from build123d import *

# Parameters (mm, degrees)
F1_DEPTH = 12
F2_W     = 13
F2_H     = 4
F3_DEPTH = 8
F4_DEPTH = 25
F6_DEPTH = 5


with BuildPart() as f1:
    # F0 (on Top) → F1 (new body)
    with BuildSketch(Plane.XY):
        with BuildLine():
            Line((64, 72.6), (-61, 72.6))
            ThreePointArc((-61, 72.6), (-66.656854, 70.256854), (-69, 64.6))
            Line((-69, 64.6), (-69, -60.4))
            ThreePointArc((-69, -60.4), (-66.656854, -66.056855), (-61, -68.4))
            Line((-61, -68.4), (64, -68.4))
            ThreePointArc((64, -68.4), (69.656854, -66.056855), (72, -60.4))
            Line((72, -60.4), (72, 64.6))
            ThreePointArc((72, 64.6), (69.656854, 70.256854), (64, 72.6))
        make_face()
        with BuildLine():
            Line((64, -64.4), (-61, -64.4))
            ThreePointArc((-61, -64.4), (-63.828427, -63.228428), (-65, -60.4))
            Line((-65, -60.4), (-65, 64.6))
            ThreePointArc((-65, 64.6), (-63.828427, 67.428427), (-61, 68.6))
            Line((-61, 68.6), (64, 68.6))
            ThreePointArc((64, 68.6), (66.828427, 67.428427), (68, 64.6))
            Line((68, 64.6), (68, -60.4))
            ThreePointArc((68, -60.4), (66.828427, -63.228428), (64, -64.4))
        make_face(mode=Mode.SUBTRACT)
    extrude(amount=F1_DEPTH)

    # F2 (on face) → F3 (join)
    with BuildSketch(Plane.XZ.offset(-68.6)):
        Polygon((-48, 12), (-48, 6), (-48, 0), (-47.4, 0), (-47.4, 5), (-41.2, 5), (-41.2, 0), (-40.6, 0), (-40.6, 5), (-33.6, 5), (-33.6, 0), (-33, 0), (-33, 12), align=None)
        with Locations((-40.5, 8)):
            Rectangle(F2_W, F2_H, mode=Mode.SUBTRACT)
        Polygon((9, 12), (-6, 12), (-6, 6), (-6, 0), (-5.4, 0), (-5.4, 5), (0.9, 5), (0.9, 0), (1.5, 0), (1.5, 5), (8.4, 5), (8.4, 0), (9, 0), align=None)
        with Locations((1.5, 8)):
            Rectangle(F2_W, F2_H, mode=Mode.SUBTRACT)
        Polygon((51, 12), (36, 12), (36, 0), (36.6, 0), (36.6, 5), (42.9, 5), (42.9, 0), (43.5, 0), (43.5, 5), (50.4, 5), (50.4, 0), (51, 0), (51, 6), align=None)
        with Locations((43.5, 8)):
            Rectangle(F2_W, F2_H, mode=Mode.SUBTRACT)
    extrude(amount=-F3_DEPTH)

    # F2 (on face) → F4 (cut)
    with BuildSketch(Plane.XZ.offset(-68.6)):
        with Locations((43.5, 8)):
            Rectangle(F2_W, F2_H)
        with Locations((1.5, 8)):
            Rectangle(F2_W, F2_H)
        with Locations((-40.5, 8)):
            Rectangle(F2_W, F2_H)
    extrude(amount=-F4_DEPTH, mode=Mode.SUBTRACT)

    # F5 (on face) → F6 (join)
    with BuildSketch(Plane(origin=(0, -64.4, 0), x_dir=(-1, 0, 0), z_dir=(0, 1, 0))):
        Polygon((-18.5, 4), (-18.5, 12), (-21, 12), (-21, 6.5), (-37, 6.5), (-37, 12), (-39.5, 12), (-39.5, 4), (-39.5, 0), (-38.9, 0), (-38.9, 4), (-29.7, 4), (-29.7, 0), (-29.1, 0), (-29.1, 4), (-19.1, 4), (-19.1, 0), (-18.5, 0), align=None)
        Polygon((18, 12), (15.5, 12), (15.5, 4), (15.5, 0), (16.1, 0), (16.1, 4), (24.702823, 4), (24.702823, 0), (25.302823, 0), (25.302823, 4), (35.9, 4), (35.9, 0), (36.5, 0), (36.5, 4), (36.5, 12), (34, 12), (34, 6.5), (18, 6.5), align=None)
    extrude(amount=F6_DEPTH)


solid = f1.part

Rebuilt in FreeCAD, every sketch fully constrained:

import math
import FreeCAD as App
import Part
import Sketcher
from FreeCAD import Vector


def add_polygon(sketch, points):
    """Adds a closed chain of lines whose ends are joined by coincident constraints."""
    first, n = sketch.GeometryCount, len(points)
    for a, b in zip(points, points[1:] + points[:1]):
        sketch.addGeometry(Part.LineSegment(App.Vector(*a, 0), App.Vector(*b, 0)), False)
    for i in range(n):
        sketch.addConstraint(Sketcher.Constraint("Coincident", first + i, 2, first + (i + 1) % n, 1))

doc = App.newDocument("Part")
params = doc.addObject("Spreadsheet::Sheet", "Params")
for row, (alias, value) in enumerate([
    ("sketch1_radius", "8.000001 mm"),
    ("sketch1_radius2", "3.999999 mm"),
    ("sketch1_width", "125 mm"),
    ("pad1_length", "12 mm"),
    ("sketch2_width", "7 mm"),
    ("sketch2_width2", "15 mm"),
    ("sketch2_width3", "13 mm"),
    ("sketch2_height", "12 mm"),
    ("sketch2_height2", "5 mm"),
    ("pad2_length", "8 mm"),
    ("sketch3_width", "13 mm"),
    ("sketch3_height", "4 mm"),
    ("pocket1_length", "25 mm"),
    ("sketch4_width", "16 mm"),
    ("sketch4_width2", "10 mm"),
    ("sketch4_height", "12 mm"),
    ("sketch4_height2", "4 mm"),
    ("sketch4_width3", "2.5 mm"),
    ("pad3_length", "5 mm"),
], start=1):
    params.set(f"A{row}", alias)
    params.set(f"B{row}", "=" + value)
    params.setAlias(f"B{row}", alias)

body = doc.addObject("PartDesign::Body", "Body")

# Sketch on XY plane
sketch1 = doc.addObject("Sketcher::SketchObject", "Sketch")
body.addObject(sketch1)
sketch1.AttachmentSupport = (doc.XY_Plane, [""])
sketch1.MapMode = "FlatFace"
sketch1.addGeometry([
    Part.LineSegment(Vector(64, 72.6, 0), Vector(-61, 72.6, 0)),  # 0
    Part.ArcOfCircle(Part.Circle(Vector(-61, 64.6, 0), Vector(0, 0, 1), 8), math.radians(90), math.radians(180)),  # 1
    Part.LineSegment(Vector(-69, 64.6, 0), Vector(-69, -60.4, 0)),  # 2
    Part.ArcOfCircle(Part.Circle(Vector(-61, -60.4, 0), Vector(0, 0, 1), 8), math.radians(180), math.radians(270)),  # 3
    Part.LineSegment(Vector(-61, -68.4, 0), Vector(64, -68.4, 0)),  # 4
    Part.ArcOfCircle(Part.Circle(Vector(64, -60.4, 0), Vector(0, 0, 1), 8), math.radians(-90), math.radians(0)),  # 5
    Part.LineSegment(Vector(72, -60.4, 0), Vector(72, 64.6, 0)),  # 6
    Part.ArcOfCircle(Part.Circle(Vector(64, 64.6, 0), Vector(0, 0, 1), 8), math.radians(0), math.radians(90)),  # 7
    Part.ArcOfCircle(Part.Circle(Vector(64, -60.4, 0), Vector(0, 0, 1), 4), math.radians(-90), math.radians(0)),  # 8
    Part.LineSegment(Vector(64, -64.4, 0), Vector(-61, -64.4, 0)),  # 9
    Part.ArcOfCircle(Part.Circle(Vector(-61, -60.4, 0), Vector(0, 0, 1), 4), math.radians(180), math.radians(270)),  # 10
    Part.LineSegment(Vector(-65, -60.4, 0), Vector(-65, 64.6, 0)),  # 11
    Part.ArcOfCircle(Part.Circle(Vector(-61, 64.6, 0), Vector(0, 0, 1), 4), math.radians(90), math.radians(180)),  # 12
    Part.LineSegment(Vector(-61, 68.6, 0), Vector(64, 68.6, 0)),  # 13
    Part.ArcOfCircle(Part.Circle(Vector(64, 64.6, 0), Vector(0, 0, 1), 4), math.radians(0), math.radians(90)),  # 14
    Part.LineSegment(Vector(68, 64.6, 0), Vector(68, -60.4, 0)),  # 15
], False)
sketch1.addConstraint([
    Sketcher.Constraint("Tangent", 0, 2, 1, 1),
    Sketcher.Constraint("Tangent", 1, 2, 2, 1),
    Sketcher.Constraint("Tangent", 2, 2, 3, 1),
    Sketcher.Constraint("Tangent", 3, 2, 4, 1),
    Sketcher.Constraint("Tangent", 4, 2, 5, 1),
    Sketcher.Constraint("Tangent", 5, 2, 6, 1),
    Sketcher.Constraint("Tangent", 6, 2, 7, 1),
    Sketcher.Constraint("Tangent", 7, 2, 0, 1),
    Sketcher.Constraint("Tangent", 8, 1, 9, 1),
    Sketcher.Constraint("Tangent", 9, 2, 10, 2),
    Sketcher.Constraint("Tangent", 10, 1, 11, 1),
    Sketcher.Constraint("Tangent", 11, 2, 12, 2),
    Sketcher.Constraint("Tangent", 12, 1, 13, 1),
    Sketcher.Constraint("Tangent", 13, 2, 14, 2),
    Sketcher.Constraint("Tangent", 14, 1, 15, 1),
    Sketcher.Constraint("Tangent", 15, 2, 8, 2),
    Sketcher.Constraint("Horizontal", 0),
    Sketcher.Constraint("Vertical", 2),
    Sketcher.Constraint("Horizontal", 4),
    Sketcher.Constraint("Vertical", 6),
    Sketcher.Constraint("Horizontal", 9),
    Sketcher.Constraint("Vertical", 11),
    Sketcher.Constraint("Horizontal", 13),
    Sketcher.Constraint("Vertical", 15),
    Sketcher.Constraint("Coincident", 8, 3, 5, 3),
    Sketcher.Constraint("Coincident", 10, 3, 3, 3),
    Sketcher.Constraint("Coincident", 12, 3, 1, 3),
    Sketcher.Constraint("Equal", 1, 3),
    Sketcher.Constraint("Equal", 3, 5),
    Sketcher.Constraint("Equal", 5, 7),
    Sketcher.Constraint("Equal", 12, 14),
    Sketcher.Constraint("Equal", 13, 2),
    Sketcher.Constraint("Radius", 1, 8.000001),
    Sketcher.Constraint("Radius", 8, 3.999999),
    Sketcher.Constraint("DistanceX", 0, 2, 0, 1, 125.0),
    Sketcher.Constraint("DistanceX", 1, 3, -1, 1, 60.999999),
    Sketcher.Constraint("DistanceY", -1, 1, 1, 3, 64.599999),
])
sketch1.setExpression("Constraints[32]", "Params.sketch1_radius")
sketch1.setExpression("Constraints[33]", "Params.sketch1_radius2")
sketch1.setExpression("Constraints[34]", "Params.sketch1_width")
pad1 = doc.addObject("PartDesign::Pad", "Pad")
body.addObject(pad1)
pad1.Profile = sketch1
pad1.setExpression("Length", "Params.pad1_length")

# Sketch on XZ plane
sketch2 = doc.addObject("Sketcher::SketchObject", "Sketch001")
body.addObject(sketch2)
sketch2.AttachmentSupport = (doc.XZ_Plane, [""])
sketch2.MapMode = "FlatFace"
sketch2.AttachmentOffset = App.Placement(Vector(0, 0, -68.6), App.Rotation())
add_polygon(sketch2, [(-48, 12), (-48, 0), (-47.4, 0), (-47.4, 5), (-41.2, 5), (-41.2, 0), (-40.6, 0), (-40.6, 5), (-33.6, 5), (-33.6, 0), (-33, 0), (-33, 12)])  # lines 0-11
add_polygon(sketch2, [(-34, 6), (-47, 6), (-47, 10), (-34, 10)])  # lines 12-15
add_polygon(sketch2, [(9, 12), (-6, 12), (-6, 0), (-5.4, 0), (-5.4, 5), (0.9, 5), (0.9, 0), (1.5, 0), (1.5, 5), (8.4, 5), (8.4, 0), (9, 0)])  # lines 16-27
add_polygon(sketch2, [(8, 6), (-5, 6), (-5, 10), (8, 10)])  # lines 28-31
add_polygon(sketch2, [(51, 12), (36, 12), (36, 0), (36.6, 0), (36.6, 5), (42.9, 5), (42.9, 0), (43.5, 0), (43.5, 5), (50.4, 5), (50.4, 0), (51, 0)])  # lines 32-43
add_polygon(sketch2, [(50, 6), (37, 6), (37, 10), (50, 10)])  # lines 44-47
sketch2.addConstraint([
    Sketcher.Constraint("Vertical", 0),
    Sketcher.Constraint("Horizontal", 1),
    Sketcher.Constraint("Vertical", 2),
    Sketcher.Constraint("Horizontal", 3),
    Sketcher.Constraint("Vertical", 4),
    Sketcher.Constraint("Horizontal", 5),
    Sketcher.Constraint("Vertical", 6),
    Sketcher.Constraint("Horizontal", 7),
    Sketcher.Constraint("Vertical", 8),
    Sketcher.Constraint("Horizontal", 9),
    Sketcher.Constraint("Vertical", 10),
    Sketcher.Constraint("Horizontal", 11),
    Sketcher.Constraint("Horizontal", 12),
    Sketcher.Constraint("Vertical", 13),
    Sketcher.Constraint("Horizontal", 14),
    Sketcher.Constraint("Vertical", 15),
    Sketcher.Constraint("Horizontal", 16),
    Sketcher.Constraint("Vertical", 17),
    Sketcher.Constraint("Horizontal", 18),
    Sketcher.Constraint("Vertical", 19),
    Sketcher.Constraint("Horizontal", 20),
    Sketcher.Constraint("Vertical", 21),
    Sketcher.Constraint("Horizontal", 22),
    Sketcher.Constraint("Vertical", 23),
    Sketcher.Constraint("Horizontal", 24),
    Sketcher.Constraint("Vertical", 25),
    Sketcher.Constraint("Horizontal", 26),
    Sketcher.Constraint("Vertical", 27),
    Sketcher.Constraint("Horizontal", 28),
    Sketcher.Constraint("Vertical", 29),
    Sketcher.Constraint("Horizontal", 30),
    Sketcher.Constraint("Vertical", 31),
    Sketcher.Constraint("Horizontal", 32),
    Sketcher.Constraint("Vertical", 33),
    Sketcher.Constraint("Horizontal", 34),
    Sketcher.Constraint("Vertical", 35),
    Sketcher.Constraint("Horizontal", 36),
    Sketcher.Constraint("Vertical", 37),
    Sketcher.Constraint("Horizontal", 38),
    Sketcher.Constraint("Vertical", 39),
    Sketcher.Constraint("Horizontal", 40),
    Sketcher.Constraint("Vertical", 41),
    Sketcher.Constraint("Horizontal", 42),
    Sketcher.Constraint("Vertical", 43),
    Sketcher.Constraint("Horizontal", 44),
    Sketcher.Constraint("Vertical", 45),
    Sketcher.Constraint("Horizontal", 46),
    Sketcher.Constraint("Vertical", 47),
    Sketcher.Constraint("PointOnObject", 0, 2, -1),
    Sketcher.Constraint("PointOnObject", 4, 2, -1),
    Sketcher.Constraint("PointOnObject", 8, 2, -1),
    Sketcher.Constraint("PointOnObject", 17, 2, -1),
    Sketcher.Constraint("PointOnObject", 21, 2, -1),
    Sketcher.Constraint("PointOnObject", 25, 2, -1),
    Sketcher.Constraint("PointOnObject", 33, 2, -1),
    Sketcher.Constraint("PointOnObject", 37, 2, -1),
    Sketcher.Constraint("PointOnObject", 41, 2, -1),
    Sketcher.Constraint("Horizontal", 3, 2, 6, 2),
    Sketcher.Constraint("Horizontal", 11, 2, 16, 2),
    Sketcher.Constraint("Horizontal", 7, 2, 19, 2),
    Sketcher.Constraint("Horizontal", 20, 2, 23, 2),
    Sketcher.Constraint("Horizontal", 15, 2, 28, 2),
    Sketcher.Constraint("Horizontal", 14, 2, 29, 2),
    Sketcher.Constraint("Horizontal", 27, 2, 32, 2),
    Sketcher.Constraint("Horizontal", 24, 2, 35, 2),
    Sketcher.Constraint("Horizontal", 36, 2, 39, 2),
    Sketcher.Constraint("Horizontal", 31, 2, 44, 2),
    Sketcher.Constraint("Horizontal", 30, 2, 45, 2),
    Sketcher.Constraint("Equal", 1, 5),
    Sketcher.Constraint("Equal", 5, 9),
    Sketcher.Constraint("Equal", 11, 16),
    Sketcher.Constraint("Equal", 9, 18),
    Sketcher.Constraint("Equal", 18, 22),
    Sketcher.Constraint("Equal", 22, 26),
    Sketcher.Constraint("Equal", 14, 28),
    Sketcher.Constraint("Equal", 16, 32),
    Sketcher.Constraint("Equal", 26, 34),
    Sketcher.Constraint("Equal", 20, 36),
    Sketcher.Constraint("Equal", 34, 38),
    Sketcher.Constraint("Equal", 24, 40),
    Sketcher.Constraint("Equal", 30, 44),
    Sketcher.Constraint("DistanceX", 7, 1, 7, 2, 7.0),
    Sketcher.Constraint("DistanceX", 11, 2, 11, 1, 15.0),
    Sketcher.Constraint("DistanceX", 12, 2, 12, 1, 13.0),
    Sketcher.Constraint("DistanceY", 0, 2, 0, 1, 12.0),
    Sketcher.Constraint("DistanceY", 2, 1, 2, 2, 5.0),
    Sketcher.Constraint("DistanceY", 13, 1, 13, 2, 4.0),
    Sketcher.Constraint("DistanceX", 1, 1, 1, 2, 0.6),
    Sketcher.Constraint("DistanceX", 20, 1, 20, 2, 6.3),
    Sketcher.Constraint("DistanceX", 0, 2, -1, 1, 48.0),
    Sketcher.Constraint("DistanceX", 12, 2, -1, 1, 47.0),
    Sketcher.Constraint("DistanceY", -1, 1, 12, 2, 6.0),
    Sketcher.Constraint("DistanceX", 16, 2, -1, 1, 6.0),
    Sketcher.Constraint("DistanceX", 28, 2, -1, 1, 5.0),
    Sketcher.Constraint("DistanceX", -1, 1, 32, 2, 36.0),
    Sketcher.Constraint("DistanceX", -1, 1, 44, 2, 37.0),
])
sketch2.setExpression("Constraints[129]", "Params.sketch2_width")
sketch2.setExpression("Constraints[130]", "Params.sketch2_width2")
sketch2.setExpression("Constraints[131]", "Params.sketch2_width3")
sketch2.setExpression("Constraints[132]", "Params.sketch2_height")
sketch2.setExpression("Constraints[133]", "Params.sketch2_height2")
pad2 = doc.addObject("PartDesign::Pad", "Pad001")
body.addObject(pad2)
pad2.Profile = sketch2
pad2.setExpression("Length", "Params.pad2_length")
pad2.Reversed = True

# Sketch on XZ plane
sketch3 = doc.addObject("Sketcher::SketchObject", "Sketch002")
body.addObject(sketch3)
sketch3.AttachmentSupport = (doc.XZ_Plane, [""])
sketch3.MapMode = "FlatFace"
sketch3.AttachmentOffset = App.Placement(Vector(0, 0, -68.6), App.Rotation())
add_polygon(sketch3, [(37, 10), (37, 6), (50, 6), (50, 10)])  # lines 0-3
add_polygon(sketch3, [(-5, 10), (-5, 6), (8, 6), (8, 10)])  # lines 4-7
add_polygon(sketch3, [(-47, 10), (-47, 6), (-34, 6), (-34, 10)])  # lines 8-11
sketch3.addConstraint([
    Sketcher.Constraint("Vertical", 0),
    Sketcher.Constraint("Horizontal", 1),
    Sketcher.Constraint("Vertical", 2),
    Sketcher.Constraint("Horizontal", 3),
    Sketcher.Constraint("Vertical", 4),
    Sketcher.Constraint("Horizontal", 5),
    Sketcher.Constraint("Vertical", 6),
    Sketcher.Constraint("Horizontal", 7),
    Sketcher.Constraint("Vertical", 8),
    Sketcher.Constraint("Horizontal", 9),
    Sketcher.Constraint("Vertical", 10),
    Sketcher.Constraint("Horizontal", 11),
    Sketcher.Constraint("Horizontal", 1, 2, 4, 2),
    Sketcher.Constraint("Horizontal", 3, 2, 6, 2),
    Sketcher.Constraint("Horizontal", 5, 2, 8, 2),
    Sketcher.Constraint("Horizontal", 7, 2, 10, 2),
    Sketcher.Constraint("Equal", 3, 5),
    Sketcher.Constraint("Equal", 7, 9),
    Sketcher.Constraint("DistanceX", 1, 1, 1, 2, 13.0),
    Sketcher.Constraint("DistanceY", 0, 2, 0, 1, 4.0),
    Sketcher.Constraint("DistanceX", -1, 1, 0, 2, 37.0),
    Sketcher.Constraint("DistanceY", -1, 1, 0, 2, 6.0),
    Sketcher.Constraint("DistanceX", 4, 2, -1, 1, 5.0),
    Sketcher.Constraint("DistanceX", 8, 2, -1, 1, 47.0),
])
sketch3.setExpression("Constraints[30]", "Params.sketch3_width")
sketch3.setExpression("Constraints[31]", "Params.sketch3_height")
pocket1 = doc.addObject("PartDesign::Pocket", "Pocket")
body.addObject(pocket1)
pocket1.Profile = sketch3
pocket1.setExpression("Length", "Params.pocket1_length")

# Sketch on XZ plane
sketch4 = doc.addObject("Sketcher::SketchObject", "Sketch003")
body.addObject(sketch4)
sketch4.AttachmentSupport = (doc.XZ_Plane, [""])
sketch4.MapMode = "FlatFace"
sketch4.AttachmentOffset = App.Placement(Vector(0, 0, 64.4), App.Rotation())
add_polygon(sketch4, [(18.5, 12), (21, 12), (21, 6.5), (37, 6.5), (37, 12), (39.5, 12), (39.5, 0), (38.9, 0), (38.9, 4), (29.7, 4), (29.7, 0), (29.1, 0), (29.1, 4), (19.1, 4), (19.1, 0), (18.5, 0)])  # lines 0-15
add_polygon(sketch4, [(-18, 12), (-15.5, 12), (-15.5, 0), (-16.1, 0), (-16.1, 4), (-24.7, 4), (-24.7, 0), (-25.3, 0), (-25.3, 4), (-35.9, 4), (-35.9, 0), (-36.5, 0), (-36.5, 12), (-34, 12), (-34, 6.5), (-18, 6.5)])  # lines 16-31
sketch4.addConstraint([
    Sketcher.Constraint("Horizontal", 0),
    Sketcher.Constraint("Vertical", 1),
    Sketcher.Constraint("Horizontal", 2),
    Sketcher.Constraint("Vertical", 3),
    Sketcher.Constraint("Horizontal", 4),
    Sketcher.Constraint("Vertical", 5),
    Sketcher.Constraint("Horizontal", 6),
    Sketcher.Constraint("Vertical", 7),
    Sketcher.Constraint("Horizontal", 8),
    Sketcher.Constraint("Vertical", 9),
    Sketcher.Constraint("Horizontal", 10),
    Sketcher.Constraint("Vertical", 11),
    Sketcher.Constraint("Horizontal", 12),
    Sketcher.Constraint("Vertical", 13),
    Sketcher.Constraint("Horizontal", 14),
    Sketcher.Constraint("Vertical", 15),
    Sketcher.Constraint("Horizontal", 16),
    Sketcher.Constraint("Vertical", 17),
    Sketcher.Constraint("Horizontal", 18),
    Sketcher.Constraint("Vertical", 19),
    Sketcher.Constraint("Horizontal", 20),
    Sketcher.Constraint("Vertical", 21),
    Sketcher.Constraint("Horizontal", 22),
    Sketcher.Constraint("Vertical", 23),
    Sketcher.Constraint("Horizontal", 24),
    Sketcher.Constraint("Vertical", 25),
    Sketcher.Constraint("Horizontal", 26),
    Sketcher.Constraint("Vertical", 27),
    Sketcher.Constraint("Horizontal", 28),
    Sketcher.Constraint("Vertical", 29),
    Sketcher.Constraint("Horizontal", 30),
    Sketcher.Constraint("Vertical", 31),
    Sketcher.Constraint("PointOnObject", 5, 2, -1),
    Sketcher.Constraint("PointOnObject", 9, 2, -1),
    Sketcher.Constraint("PointOnObject", 13, 2, -1),
    Sketcher.Constraint("PointOnObject", 17, 2, -1),
    Sketcher.Constraint("PointOnObject", 21, 2, -1),
    Sketcher.Constraint("PointOnObject", 25, 2, -1),
    Sketcher.Constraint("Horizontal", 0, 2, 3, 2),
    Sketcher.Constraint("Horizontal", 8, 2, 11, 2),
    Sketcher.Constraint("Horizontal", 15, 2, 16, 2),
    Sketcher.Constraint("Horizontal", 12, 2, 19, 2),
    Sketcher.Constraint("Horizontal", 20, 2, 23, 2),
    Sketcher.Constraint("Horizontal", 16, 2, 27, 2),
    Sketcher.Constraint("Horizontal", 2, 2, 29, 2),
    Sketcher.Constraint("Equal", 0, 4),
    Sketcher.Constraint("Equal", 6, 10),
    Sketcher.Constraint("Equal", 10, 14),
    Sketcher.Constraint("Equal", 4, 16),
    Sketcher.Constraint("Equal", 14, 18),
    Sketcher.Constraint("Equal", 18, 22),
    Sketcher.Constraint("Equal", 22, 26),
    Sketcher.Constraint("Equal", 16, 28),
    Sketcher.Constraint("Equal", 2, 30),
    Sketcher.Constraint("DistanceX", 2, 1, 2, 2, 16.0),
    Sketcher.Constraint("DistanceX", 12, 2, 12, 1, 10.0),
    Sketcher.Constraint("DistanceY", 5, 2, 5, 1, 12.0),
    Sketcher.Constraint("DistanceY", 7, 1, 7, 2, 4.0),
    Sketcher.Constraint("DistanceX", 0, 1, 0, 2, 2.5),
    Sketcher.Constraint("DistanceX", 6, 2, 6, 1, 0.6),
    Sketcher.Constraint("DistanceY", 1, 2, 1, 1, 5.5),
    Sketcher.Constraint("DistanceX", -1, 1, 0, 2, 21.0),
    Sketcher.Constraint("DistanceX", 28, 2, -1, 1, 34.0),
    Sketcher.Constraint("DistanceX", 20, 2, 20, 1, 8.602823),
])
sketch4.setExpression("Constraints[86]", "Params.sketch4_width")
sketch4.setExpression("Constraints[87]", "Params.sketch4_width2")
sketch4.setExpression("Constraints[88]", "Params.sketch4_height")
sketch4.setExpression("Constraints[89]", "Params.sketch4_height2")
sketch4.setExpression("Constraints[90]", "Params.sketch4_width3")
pad3 = doc.addObject("PartDesign::Pad", "Pad002")
body.addObject(pad3)
pad3.Profile = sketch4
pad3.setExpression("Length", "Params.pad3_length")
pad3.Reversed = True

doc.recompute()
